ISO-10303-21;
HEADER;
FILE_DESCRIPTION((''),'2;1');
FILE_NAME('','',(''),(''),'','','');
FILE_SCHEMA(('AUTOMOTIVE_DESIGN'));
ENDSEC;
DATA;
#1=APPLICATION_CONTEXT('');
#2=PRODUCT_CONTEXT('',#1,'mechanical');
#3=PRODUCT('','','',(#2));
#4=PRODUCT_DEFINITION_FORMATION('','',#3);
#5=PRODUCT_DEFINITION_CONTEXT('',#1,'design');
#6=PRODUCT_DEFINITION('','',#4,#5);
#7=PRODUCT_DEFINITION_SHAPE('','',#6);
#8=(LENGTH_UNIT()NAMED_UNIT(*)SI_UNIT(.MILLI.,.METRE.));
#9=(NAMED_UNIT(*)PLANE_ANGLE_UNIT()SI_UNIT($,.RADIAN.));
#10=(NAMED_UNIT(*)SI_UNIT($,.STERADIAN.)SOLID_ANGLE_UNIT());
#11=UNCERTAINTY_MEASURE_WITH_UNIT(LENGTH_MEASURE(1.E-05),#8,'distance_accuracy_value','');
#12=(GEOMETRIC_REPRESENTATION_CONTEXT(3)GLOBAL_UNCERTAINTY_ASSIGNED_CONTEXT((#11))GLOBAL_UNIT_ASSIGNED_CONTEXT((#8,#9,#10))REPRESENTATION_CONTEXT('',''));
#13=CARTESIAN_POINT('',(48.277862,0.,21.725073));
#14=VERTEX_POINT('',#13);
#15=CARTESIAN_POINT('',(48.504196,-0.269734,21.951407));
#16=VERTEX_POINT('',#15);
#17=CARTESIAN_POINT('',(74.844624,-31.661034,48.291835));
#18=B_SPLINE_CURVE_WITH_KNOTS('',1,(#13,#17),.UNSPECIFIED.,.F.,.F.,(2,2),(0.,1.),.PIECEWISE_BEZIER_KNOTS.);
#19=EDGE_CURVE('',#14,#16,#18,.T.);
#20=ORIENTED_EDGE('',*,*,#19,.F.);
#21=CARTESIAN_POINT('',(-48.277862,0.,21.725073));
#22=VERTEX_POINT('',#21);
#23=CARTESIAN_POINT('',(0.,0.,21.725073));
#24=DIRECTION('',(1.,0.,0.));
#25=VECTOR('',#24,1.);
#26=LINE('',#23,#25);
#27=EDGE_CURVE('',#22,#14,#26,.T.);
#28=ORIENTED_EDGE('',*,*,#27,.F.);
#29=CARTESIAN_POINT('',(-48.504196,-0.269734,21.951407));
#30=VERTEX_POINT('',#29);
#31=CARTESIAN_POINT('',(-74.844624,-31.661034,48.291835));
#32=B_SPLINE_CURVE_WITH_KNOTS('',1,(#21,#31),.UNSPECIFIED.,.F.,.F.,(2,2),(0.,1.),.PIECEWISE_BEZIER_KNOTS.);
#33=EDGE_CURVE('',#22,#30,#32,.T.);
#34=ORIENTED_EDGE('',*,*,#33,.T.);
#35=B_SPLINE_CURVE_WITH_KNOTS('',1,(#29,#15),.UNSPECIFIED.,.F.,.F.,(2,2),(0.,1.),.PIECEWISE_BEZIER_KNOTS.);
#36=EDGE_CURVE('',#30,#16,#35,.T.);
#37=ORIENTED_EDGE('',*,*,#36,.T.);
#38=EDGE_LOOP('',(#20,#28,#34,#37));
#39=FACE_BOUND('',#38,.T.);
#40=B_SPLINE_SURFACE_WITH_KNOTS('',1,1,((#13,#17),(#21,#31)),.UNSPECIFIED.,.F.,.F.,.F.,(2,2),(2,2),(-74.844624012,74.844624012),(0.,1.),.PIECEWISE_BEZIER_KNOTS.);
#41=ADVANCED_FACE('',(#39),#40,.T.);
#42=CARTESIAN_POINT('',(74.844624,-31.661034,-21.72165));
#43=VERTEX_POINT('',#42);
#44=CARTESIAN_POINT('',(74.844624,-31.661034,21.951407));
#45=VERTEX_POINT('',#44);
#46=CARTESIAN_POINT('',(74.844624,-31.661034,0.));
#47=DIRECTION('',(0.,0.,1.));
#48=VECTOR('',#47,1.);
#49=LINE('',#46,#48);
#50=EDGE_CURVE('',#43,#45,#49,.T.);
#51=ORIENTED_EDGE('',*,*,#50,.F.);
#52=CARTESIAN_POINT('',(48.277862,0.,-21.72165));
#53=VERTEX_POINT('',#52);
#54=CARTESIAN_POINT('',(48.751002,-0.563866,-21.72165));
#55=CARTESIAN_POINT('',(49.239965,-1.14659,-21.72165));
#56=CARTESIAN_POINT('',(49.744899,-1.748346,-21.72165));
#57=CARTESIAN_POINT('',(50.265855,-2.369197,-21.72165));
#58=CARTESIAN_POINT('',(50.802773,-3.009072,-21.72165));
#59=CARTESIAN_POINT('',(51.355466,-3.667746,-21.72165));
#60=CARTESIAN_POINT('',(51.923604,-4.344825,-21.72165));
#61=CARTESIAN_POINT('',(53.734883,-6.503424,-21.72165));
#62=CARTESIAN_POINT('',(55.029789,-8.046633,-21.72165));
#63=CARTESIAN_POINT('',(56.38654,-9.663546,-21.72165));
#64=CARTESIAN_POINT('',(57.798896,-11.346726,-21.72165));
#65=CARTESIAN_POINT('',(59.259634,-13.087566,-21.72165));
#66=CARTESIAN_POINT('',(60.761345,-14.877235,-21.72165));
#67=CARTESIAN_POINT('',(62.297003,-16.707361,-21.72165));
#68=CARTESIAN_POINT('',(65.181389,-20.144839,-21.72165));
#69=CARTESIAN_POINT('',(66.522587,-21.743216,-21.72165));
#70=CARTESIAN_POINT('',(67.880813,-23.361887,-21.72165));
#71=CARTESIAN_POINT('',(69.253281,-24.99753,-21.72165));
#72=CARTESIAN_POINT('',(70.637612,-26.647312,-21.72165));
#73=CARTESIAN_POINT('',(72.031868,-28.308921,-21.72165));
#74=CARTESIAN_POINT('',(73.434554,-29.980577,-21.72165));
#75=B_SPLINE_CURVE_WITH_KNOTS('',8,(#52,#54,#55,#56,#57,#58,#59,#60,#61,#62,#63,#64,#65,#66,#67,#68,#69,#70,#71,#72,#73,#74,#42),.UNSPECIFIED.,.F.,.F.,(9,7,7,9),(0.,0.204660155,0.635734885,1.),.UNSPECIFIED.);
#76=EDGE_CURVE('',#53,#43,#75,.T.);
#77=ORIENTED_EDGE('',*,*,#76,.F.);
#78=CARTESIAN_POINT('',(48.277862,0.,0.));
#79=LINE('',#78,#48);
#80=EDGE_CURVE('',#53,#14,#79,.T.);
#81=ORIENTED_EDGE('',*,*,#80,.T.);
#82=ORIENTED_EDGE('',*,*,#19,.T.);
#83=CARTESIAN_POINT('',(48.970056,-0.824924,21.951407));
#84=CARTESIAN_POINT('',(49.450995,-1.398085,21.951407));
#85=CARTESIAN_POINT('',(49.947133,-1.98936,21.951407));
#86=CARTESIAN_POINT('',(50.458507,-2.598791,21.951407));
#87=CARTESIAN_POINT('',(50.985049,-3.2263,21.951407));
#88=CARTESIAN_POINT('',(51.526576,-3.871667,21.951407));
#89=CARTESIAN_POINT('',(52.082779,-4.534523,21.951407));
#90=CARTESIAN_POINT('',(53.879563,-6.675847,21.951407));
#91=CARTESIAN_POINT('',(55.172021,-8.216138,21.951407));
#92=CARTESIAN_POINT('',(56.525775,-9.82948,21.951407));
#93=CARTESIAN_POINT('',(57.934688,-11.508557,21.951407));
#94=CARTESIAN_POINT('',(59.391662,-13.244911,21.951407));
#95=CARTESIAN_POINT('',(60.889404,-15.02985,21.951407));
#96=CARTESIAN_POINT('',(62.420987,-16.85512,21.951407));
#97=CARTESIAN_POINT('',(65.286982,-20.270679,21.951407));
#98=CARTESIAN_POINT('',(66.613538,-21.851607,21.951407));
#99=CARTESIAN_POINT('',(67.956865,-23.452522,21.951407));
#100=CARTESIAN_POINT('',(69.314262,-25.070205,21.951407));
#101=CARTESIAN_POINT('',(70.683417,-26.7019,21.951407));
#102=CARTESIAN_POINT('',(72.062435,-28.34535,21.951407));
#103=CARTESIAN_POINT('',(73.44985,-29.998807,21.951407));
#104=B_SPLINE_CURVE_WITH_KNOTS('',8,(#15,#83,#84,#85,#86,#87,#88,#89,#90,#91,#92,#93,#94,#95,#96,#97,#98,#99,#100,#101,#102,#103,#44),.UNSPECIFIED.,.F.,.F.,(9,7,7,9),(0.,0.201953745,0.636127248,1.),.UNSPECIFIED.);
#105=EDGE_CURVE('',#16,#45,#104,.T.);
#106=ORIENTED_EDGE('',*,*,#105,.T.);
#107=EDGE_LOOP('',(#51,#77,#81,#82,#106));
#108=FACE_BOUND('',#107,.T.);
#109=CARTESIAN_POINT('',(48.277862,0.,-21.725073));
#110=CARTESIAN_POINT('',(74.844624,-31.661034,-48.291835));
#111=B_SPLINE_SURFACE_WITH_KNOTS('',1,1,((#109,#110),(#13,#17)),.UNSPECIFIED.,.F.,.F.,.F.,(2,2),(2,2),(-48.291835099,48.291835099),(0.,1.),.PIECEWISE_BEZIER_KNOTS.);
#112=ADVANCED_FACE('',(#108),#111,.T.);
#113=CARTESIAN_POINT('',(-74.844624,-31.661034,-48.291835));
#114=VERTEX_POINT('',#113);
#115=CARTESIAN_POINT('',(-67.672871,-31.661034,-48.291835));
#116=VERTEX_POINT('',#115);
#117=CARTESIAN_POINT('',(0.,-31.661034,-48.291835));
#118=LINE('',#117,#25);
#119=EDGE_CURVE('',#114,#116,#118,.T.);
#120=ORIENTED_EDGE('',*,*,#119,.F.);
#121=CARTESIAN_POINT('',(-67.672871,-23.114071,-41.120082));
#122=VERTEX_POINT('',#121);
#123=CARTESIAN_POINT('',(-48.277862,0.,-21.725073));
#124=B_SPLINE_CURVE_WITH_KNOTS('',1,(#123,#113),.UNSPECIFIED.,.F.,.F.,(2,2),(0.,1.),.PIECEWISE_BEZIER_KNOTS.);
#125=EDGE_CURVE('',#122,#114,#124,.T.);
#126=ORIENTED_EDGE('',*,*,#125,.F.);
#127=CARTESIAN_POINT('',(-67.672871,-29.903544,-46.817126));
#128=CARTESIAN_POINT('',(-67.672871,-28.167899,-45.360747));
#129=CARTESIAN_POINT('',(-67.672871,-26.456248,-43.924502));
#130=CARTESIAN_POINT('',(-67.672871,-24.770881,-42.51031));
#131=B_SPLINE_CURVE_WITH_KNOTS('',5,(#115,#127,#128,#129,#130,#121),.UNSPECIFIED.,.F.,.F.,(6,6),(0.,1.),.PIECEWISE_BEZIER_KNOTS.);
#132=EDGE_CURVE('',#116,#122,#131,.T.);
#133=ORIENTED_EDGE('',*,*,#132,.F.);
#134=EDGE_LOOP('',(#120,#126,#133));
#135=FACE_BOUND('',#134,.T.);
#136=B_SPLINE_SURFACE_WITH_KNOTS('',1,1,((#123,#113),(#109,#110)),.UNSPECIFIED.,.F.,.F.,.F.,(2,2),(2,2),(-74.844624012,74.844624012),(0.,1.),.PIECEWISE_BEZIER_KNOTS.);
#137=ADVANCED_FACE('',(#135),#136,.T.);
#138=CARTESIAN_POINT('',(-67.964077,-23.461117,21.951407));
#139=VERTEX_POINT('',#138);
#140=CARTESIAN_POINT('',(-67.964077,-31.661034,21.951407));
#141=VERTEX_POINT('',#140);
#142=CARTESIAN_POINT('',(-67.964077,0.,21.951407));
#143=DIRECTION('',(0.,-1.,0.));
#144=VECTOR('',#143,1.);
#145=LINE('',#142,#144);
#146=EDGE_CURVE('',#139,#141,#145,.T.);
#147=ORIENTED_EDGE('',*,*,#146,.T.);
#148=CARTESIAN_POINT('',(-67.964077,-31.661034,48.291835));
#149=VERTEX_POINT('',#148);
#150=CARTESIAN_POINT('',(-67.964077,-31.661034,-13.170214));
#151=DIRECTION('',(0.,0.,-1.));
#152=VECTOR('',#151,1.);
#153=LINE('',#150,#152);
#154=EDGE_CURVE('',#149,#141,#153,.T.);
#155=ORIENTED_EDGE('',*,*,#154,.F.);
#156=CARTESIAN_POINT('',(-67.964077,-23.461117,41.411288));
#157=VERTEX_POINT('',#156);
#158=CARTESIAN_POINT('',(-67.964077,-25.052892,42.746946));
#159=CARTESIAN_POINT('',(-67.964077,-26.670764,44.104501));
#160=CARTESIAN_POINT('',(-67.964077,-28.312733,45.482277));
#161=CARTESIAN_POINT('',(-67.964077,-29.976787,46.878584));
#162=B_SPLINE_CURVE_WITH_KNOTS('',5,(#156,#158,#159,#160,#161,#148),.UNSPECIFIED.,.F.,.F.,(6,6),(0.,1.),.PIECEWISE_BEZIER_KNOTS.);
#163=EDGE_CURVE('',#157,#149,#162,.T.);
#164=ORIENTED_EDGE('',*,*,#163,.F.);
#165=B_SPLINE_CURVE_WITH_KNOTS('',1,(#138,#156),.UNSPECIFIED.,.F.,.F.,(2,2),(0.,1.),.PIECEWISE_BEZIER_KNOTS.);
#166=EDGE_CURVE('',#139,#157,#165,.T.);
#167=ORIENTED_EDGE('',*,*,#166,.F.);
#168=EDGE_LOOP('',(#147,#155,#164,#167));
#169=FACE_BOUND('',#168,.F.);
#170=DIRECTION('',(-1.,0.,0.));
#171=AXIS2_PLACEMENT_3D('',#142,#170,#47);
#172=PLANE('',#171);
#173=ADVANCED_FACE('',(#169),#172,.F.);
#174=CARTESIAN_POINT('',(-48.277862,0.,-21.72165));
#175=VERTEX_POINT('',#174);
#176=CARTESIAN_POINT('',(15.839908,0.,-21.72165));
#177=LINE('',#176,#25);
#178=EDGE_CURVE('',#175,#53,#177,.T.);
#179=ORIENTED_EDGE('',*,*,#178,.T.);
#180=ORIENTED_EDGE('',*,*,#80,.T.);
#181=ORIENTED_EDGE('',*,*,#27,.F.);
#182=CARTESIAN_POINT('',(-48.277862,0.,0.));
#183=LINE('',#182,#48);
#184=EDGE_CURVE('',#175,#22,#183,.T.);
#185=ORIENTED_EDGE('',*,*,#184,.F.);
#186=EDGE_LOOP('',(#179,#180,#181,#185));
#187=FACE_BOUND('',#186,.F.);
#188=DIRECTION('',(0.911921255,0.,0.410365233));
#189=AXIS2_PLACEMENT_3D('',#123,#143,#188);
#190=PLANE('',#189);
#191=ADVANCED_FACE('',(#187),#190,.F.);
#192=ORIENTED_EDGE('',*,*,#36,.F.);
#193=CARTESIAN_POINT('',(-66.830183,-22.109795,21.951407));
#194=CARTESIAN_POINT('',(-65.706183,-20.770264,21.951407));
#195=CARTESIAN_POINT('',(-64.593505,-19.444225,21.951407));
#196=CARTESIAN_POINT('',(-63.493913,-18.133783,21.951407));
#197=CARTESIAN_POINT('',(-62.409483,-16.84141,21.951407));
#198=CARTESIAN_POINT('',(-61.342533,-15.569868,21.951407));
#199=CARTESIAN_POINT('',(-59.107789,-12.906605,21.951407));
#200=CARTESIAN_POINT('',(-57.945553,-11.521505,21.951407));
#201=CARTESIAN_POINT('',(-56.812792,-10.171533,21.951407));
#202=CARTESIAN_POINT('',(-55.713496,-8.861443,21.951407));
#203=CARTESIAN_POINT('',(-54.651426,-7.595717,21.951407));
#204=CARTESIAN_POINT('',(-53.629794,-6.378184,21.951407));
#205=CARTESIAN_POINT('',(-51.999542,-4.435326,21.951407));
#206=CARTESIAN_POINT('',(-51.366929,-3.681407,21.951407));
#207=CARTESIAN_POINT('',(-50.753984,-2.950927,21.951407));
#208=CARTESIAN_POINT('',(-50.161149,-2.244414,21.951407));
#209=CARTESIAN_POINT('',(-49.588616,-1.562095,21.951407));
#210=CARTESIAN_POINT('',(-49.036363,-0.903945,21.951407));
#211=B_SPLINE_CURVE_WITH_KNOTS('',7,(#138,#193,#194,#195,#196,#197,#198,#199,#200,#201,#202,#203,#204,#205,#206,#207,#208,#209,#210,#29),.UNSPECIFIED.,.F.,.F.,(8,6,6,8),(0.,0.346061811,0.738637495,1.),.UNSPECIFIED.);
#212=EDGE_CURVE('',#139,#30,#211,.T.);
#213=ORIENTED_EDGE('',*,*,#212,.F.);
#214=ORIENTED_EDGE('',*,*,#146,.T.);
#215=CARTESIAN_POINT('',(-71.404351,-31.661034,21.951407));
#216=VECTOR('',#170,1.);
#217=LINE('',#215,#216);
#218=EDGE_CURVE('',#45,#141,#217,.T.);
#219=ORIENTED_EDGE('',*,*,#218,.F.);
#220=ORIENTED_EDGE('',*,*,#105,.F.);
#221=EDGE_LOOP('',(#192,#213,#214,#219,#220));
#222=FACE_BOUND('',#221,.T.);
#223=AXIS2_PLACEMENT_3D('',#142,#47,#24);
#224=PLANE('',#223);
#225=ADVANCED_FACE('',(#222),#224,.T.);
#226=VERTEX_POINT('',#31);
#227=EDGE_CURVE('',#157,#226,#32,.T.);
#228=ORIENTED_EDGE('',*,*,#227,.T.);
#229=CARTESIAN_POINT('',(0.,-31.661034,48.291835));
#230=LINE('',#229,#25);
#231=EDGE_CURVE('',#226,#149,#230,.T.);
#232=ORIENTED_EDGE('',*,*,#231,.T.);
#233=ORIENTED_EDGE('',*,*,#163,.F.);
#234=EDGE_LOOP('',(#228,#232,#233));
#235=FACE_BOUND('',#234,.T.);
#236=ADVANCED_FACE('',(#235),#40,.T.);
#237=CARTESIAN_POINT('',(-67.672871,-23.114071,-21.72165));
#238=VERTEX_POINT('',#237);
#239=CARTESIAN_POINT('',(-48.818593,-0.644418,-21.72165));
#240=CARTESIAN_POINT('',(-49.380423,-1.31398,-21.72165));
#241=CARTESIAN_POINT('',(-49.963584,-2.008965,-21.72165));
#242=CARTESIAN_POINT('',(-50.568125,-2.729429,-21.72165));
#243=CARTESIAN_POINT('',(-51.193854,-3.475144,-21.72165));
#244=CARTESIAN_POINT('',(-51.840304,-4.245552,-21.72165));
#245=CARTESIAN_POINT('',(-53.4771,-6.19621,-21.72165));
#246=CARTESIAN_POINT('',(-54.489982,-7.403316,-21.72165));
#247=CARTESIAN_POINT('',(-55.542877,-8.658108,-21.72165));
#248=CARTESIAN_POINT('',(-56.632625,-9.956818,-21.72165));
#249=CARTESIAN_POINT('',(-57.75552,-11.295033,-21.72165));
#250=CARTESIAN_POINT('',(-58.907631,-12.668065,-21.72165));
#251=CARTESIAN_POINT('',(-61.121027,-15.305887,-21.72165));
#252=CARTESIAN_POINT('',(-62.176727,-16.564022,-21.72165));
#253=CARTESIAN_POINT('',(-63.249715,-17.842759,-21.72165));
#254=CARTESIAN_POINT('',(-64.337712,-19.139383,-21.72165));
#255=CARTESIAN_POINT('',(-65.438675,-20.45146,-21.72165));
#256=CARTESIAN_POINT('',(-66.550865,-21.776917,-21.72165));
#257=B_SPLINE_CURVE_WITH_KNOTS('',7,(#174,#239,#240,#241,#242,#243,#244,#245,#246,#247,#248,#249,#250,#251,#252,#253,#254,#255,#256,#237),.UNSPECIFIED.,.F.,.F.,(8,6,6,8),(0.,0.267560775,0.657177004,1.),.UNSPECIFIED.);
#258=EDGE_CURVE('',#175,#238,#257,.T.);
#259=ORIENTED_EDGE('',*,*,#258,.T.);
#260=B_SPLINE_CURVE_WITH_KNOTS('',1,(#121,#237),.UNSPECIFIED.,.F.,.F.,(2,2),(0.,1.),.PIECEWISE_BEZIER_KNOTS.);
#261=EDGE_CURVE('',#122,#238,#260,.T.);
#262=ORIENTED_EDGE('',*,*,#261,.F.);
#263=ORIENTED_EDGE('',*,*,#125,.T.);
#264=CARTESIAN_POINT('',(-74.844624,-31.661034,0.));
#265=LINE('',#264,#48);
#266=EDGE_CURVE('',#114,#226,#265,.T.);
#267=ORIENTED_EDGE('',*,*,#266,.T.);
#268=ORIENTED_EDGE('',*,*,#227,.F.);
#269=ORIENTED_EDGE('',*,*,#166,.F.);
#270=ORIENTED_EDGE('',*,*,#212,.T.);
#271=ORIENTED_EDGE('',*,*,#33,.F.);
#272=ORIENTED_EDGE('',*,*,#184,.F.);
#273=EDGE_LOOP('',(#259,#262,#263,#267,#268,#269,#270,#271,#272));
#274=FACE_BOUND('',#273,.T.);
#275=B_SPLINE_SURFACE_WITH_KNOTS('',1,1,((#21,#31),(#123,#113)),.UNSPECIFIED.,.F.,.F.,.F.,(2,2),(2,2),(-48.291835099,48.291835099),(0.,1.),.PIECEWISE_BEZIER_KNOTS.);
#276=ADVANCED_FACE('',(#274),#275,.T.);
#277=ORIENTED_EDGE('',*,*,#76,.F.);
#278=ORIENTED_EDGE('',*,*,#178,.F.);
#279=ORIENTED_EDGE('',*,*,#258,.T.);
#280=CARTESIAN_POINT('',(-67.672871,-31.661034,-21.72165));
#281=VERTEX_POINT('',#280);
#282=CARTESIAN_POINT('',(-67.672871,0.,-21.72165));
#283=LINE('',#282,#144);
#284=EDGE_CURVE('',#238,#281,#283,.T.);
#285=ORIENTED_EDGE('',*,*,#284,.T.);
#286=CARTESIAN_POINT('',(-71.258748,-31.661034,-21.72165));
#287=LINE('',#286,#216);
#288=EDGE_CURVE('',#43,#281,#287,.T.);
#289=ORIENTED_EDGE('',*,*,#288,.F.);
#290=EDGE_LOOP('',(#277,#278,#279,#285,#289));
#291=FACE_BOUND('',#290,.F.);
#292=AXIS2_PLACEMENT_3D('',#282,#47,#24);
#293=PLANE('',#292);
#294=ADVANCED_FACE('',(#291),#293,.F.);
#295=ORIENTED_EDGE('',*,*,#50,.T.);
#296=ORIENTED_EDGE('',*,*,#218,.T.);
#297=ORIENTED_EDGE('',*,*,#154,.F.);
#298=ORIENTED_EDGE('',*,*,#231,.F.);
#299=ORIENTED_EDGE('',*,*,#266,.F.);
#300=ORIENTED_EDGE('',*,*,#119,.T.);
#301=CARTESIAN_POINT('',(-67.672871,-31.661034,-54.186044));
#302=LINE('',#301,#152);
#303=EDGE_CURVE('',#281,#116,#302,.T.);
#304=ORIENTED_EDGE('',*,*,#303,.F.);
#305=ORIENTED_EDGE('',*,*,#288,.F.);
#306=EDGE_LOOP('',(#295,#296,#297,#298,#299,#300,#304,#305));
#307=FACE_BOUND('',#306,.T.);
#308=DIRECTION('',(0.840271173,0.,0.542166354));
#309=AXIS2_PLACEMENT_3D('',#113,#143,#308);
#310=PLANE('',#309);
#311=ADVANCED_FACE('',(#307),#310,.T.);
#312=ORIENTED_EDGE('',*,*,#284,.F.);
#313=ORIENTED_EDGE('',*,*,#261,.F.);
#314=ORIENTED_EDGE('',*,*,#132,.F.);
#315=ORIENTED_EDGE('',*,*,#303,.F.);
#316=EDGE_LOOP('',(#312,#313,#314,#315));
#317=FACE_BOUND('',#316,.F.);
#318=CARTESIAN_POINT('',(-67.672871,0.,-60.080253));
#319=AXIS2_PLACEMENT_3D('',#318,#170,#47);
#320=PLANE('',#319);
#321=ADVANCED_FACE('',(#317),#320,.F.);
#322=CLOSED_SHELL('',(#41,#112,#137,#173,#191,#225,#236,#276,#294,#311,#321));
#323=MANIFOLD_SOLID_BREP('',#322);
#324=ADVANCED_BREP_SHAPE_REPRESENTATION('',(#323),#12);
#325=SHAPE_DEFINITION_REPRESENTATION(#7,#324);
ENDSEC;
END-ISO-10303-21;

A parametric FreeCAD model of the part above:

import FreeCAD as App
import Part
import Sketcher
from FreeCAD import Vector
Q = App.Units.Quantity

doc = App.newDocument("Part")
params = doc.addObject("Spreadsheet::Sheet", "Params")
for row, (alias, value) in enumerate([
    ("pad1_length", "31.661034 mm"),
    ("pad1_taper", "40 deg"),
    ("pocket1_length", "79.445116 mm"),
    ("pocket2_length", "14.512772 mm"),
], start=1):
    params.set(f"A{row}", alias)
    params.set(f"B{row}", "=" + value)
    params.setAlias(f"B{row}", alias)

body = doc.addObject("PartDesign::Body", "Body")

# Sketch on XZ plane
sketch1 = body.newObject("Sketcher::SketchObject", "Sketch")
sketch1.AttachmentSupport = (doc.getObject("XZ_Plane"), [""])
sketch1.MapMode = "FlatFace"
sketch1.addGeometry(Part.LineSegment(Vector(-48, 22, 0), Vector(-48, -22, 0)), False)
sketch1.addGeometry(Part.LineSegment(Vector(-48, -22, 0), Vector(48, -22, 0)), False)
sketch1.addGeometry(Part.LineSegment(Vector(48, -22, 0), Vector(48, 22, 0)), False)
sketch1.addGeometry(Part.LineSegment(Vector(48, 22, 0), Vector(-48, 22, 0)), False)
sketch1.addConstraint(Sketcher.Constraint("Coincident", 0, 2, 1, 1))
sketch1.addConstraint(Sketcher.Constraint("Coincident", 1, 2, 2, 1))
sketch1.addConstraint(Sketcher.Constraint("Coincident", 2, 2, 3, 1))
sketch1.addConstraint(Sketcher.Constraint("Coincident", 3, 2, 0, 1))
sketch1.addConstraint(Sketcher.Constraint("Vertical", 0))
sketch1.addConstraint(Sketcher.Constraint("Horizontal", 1))
sketch1.addConstraint(Sketcher.Constraint("Vertical", 2))
sketch1.addConstraint(Sketcher.Constraint("Horizontal", 3))
sketch1.addConstraint(Sketcher.Constraint("Symmetric", 0, 2, 2, 2, -1, 1))
sketch1.addConstraint(Sketcher.Constraint("DistanceX", 1, 1, 1, 2, Q("96.555725 mm")))
sketch1.addConstraint(Sketcher.Constraint("DistanceY", 0, 2, 0, 1, Q("43.450147 mm")))
pad1 = body.newObject("PartDesign::Pad", "Pad")
pad1.Profile = sketch1
pad1.setExpression("Length", "Params.pad1_length")
pad1.setExpression("TaperAngle", "Params.pad1_taper")

# Sketch on XZ plane
sketch2 = body.newObject("Sketcher::SketchObject", "Sketch001")
sketch2.AttachmentSupport = (doc.getObject("XZ_Plane"), [""])
sketch2.MapMode = "FlatFace"
sketch2.addGeometry(Part.LineSegment(Vector(-68, -22, 0), Vector(-68, -60, 0)), False)
sketch2.addGeometry(Part.LineSegment(Vector(-68, -60, 0), Vector(99, -60, 0)), False)
sketch2.addGeometry(Part.LineSegment(Vector(99, -60, 0), Vector(99, -22, 0)), False)
sketch2.addGeometry(Part.LineSegment(Vector(99, -22, 0), Vector(-68, -22, 0)), False)
sketch2.addGeometry(Part.LineSegment(Vector(-68, 54, 0), Vector(-68, 22, 0)), False)
sketch2.addGeometry(Part.LineSegment(Vector(-68, 22, 0), Vector(95, 22, 0)), False)
sketch2.addGeometry(Part.LineSegment(Vector(95, 22, 0), Vector(95, 54, 0)), False)
sketch2.addGeometry(Part.LineSegment(Vector(95, 54, 0), Vector(-68, 54, 0)), False)
sketch2.addConstraint(Sketcher.Constraint("Coincident", 0, 2, 1, 1))
sketch2.addConstraint(Sketcher.Constraint("Coincident", 1, 2, 2, 1))
sketch2.addConstraint(Sketcher.Constraint("Coincident", 2, 2, 3, 1))
sketch2.addConstraint(Sketcher.Constraint("Coincident", 3, 2, 0, 1))
sketch2.addConstraint(Sketcher.Constraint("Coincident", 4, 2, 5, 1))
sketch2.addConstraint(Sketcher.Constraint("Coincident", 5, 2, 6, 1))
sketch2.addConstraint(Sketcher.Constraint("Coincident", 6, 2, 7, 1))
sketch2.addConstraint(Sketcher.Constraint("Coincident", 7, 2, 4, 1))
sketch2.addConstraint(Sketcher.Constraint("Vertical", 0))
sketch2.addConstraint(Sketcher.Constraint("Horizontal", 1))
sketch2.addConstraint(Sketcher.Constraint("Vertical", 2))
sketch2.addConstraint(Sketcher.Constraint("Horizontal", 3))
sketch2.addConstraint(Sketcher.Constraint("Vertical", 4))
sketch2.addConstraint(Sketcher.Constraint("Horizontal", 5))
sketch2.addConstraint(Sketcher.Constraint("Vertical", 6))
sketch2.addConstraint(Sketcher.Constraint("Horizontal", 7))
sketch2.addConstraint(Sketcher.Constraint("DistanceX", 1, 1, 1, 2, Q("167.025559 mm")))
sketch2.addConstraint(Sketcher.Constraint("DistanceY", 4, 2, 4, 1, Q("31.854071 mm")))
sketch2.addConstraint(Sketcher.Constraint("DistanceX", 5, 1, 5, 2, Q("162.884243 mm")))
sketch2.addConstraint(Sketcher.Constraint("DistanceY", 0, 2, 0, 1, Q("38.358603 mm")))
sketch2.addConstraint(Sketcher.Constraint("DistanceX", 0, 2, -1, 1, Q("67.672871 mm")))
sketch2.addConstraint(Sketcher.Constraint("DistanceY", 2, 2, -1, 1, Q("21.72165 mm")))
sketch2.addConstraint(Sketcher.Constraint("DistanceY", 0, 2, 4, 2, Q("82.03166 mm")))
sketch2.addConstraint(Sketcher.Constraint("DistanceX", 5, 2, 2, 2, Q("4.432522 mm")))
pocket1 = body.newObject("PartDesign::Pocket", "Pocket")
pocket1.Profile = sketch2
pocket1.setExpression("Length", "Params.pocket1_length")
pocket1.Reversed = True

# Sketch on XZ plane
sketch3 = body.newObject("Sketcher::SketchObject", "Sketch002")
sketch3.AttachmentSupport = (doc.getObject("XZ_Plane"), [""])
sketch3.MapMode = "FlatFace"
sketch3.addGeometry(Part.LineSegment(Vector(-77, 55, 0), Vector(-77, 22, 0)), False)
sketch3.addGeometry(Part.LineSegment(Vector(-77, 22, 0), Vector(-56, 22, 0)), False)
sketch3.addGeometry(Part.LineSegment(Vector(-56, 22, 0), Vector(-56, 55, 0)), False)
sketch3.addGeometry(Part.LineSegment(Vector(-56, 55, 0), Vector(-77, 55, 0)), False)
sketch3.addConstraint(Sketcher.Constraint("Coincident", 0, 2, 1, 1))
sketch3.addConstraint(Sketcher.Constraint("Coincident", 1, 2, 2, 1))
sketch3.addConstraint(Sketcher.Constraint("Coincident", 2, 2, 3, 1))
sketch3.addConstraint(Sketcher.Constraint("Coincident", 3, 2, 0, 1))
sketch3.addConstraint(Sketcher.Constraint("Vertical", 0))
sketch3.addConstraint(Sketcher.Constraint("Horizontal", 1))
sketch3.addConstraint(Sketcher.Constraint("Vertical", 2))
sketch3.addConstraint(Sketcher.Constraint("Horizontal", 3))
sketch3.addConstraint(Sketcher.Constraint("DistanceX", 1, 1, 1, 2, Q("21.120958 mm")))
sketch3.addConstraint(Sketcher.Constraint("DistanceY", 0, 2, 0, 1, Q("32.886043 mm")))
sketch3.addConstraint(Sketcher.Constraint("DistanceX", 0, 2, -1, 1, Q("76.969534 mm")))
sketch3.addConstraint(Sketcher.Constraint("DistanceY", -1, 1, 0, 2, Q("22.254094 mm")))
pocket2 = body.newObject("PartDesign::Pocket", "Pocket001")
pocket2.Profile = sketch3
pocket2.setExpression("Length", "Params.pocket2_length")
pocket2.Reversed = True

doc.recompute()
